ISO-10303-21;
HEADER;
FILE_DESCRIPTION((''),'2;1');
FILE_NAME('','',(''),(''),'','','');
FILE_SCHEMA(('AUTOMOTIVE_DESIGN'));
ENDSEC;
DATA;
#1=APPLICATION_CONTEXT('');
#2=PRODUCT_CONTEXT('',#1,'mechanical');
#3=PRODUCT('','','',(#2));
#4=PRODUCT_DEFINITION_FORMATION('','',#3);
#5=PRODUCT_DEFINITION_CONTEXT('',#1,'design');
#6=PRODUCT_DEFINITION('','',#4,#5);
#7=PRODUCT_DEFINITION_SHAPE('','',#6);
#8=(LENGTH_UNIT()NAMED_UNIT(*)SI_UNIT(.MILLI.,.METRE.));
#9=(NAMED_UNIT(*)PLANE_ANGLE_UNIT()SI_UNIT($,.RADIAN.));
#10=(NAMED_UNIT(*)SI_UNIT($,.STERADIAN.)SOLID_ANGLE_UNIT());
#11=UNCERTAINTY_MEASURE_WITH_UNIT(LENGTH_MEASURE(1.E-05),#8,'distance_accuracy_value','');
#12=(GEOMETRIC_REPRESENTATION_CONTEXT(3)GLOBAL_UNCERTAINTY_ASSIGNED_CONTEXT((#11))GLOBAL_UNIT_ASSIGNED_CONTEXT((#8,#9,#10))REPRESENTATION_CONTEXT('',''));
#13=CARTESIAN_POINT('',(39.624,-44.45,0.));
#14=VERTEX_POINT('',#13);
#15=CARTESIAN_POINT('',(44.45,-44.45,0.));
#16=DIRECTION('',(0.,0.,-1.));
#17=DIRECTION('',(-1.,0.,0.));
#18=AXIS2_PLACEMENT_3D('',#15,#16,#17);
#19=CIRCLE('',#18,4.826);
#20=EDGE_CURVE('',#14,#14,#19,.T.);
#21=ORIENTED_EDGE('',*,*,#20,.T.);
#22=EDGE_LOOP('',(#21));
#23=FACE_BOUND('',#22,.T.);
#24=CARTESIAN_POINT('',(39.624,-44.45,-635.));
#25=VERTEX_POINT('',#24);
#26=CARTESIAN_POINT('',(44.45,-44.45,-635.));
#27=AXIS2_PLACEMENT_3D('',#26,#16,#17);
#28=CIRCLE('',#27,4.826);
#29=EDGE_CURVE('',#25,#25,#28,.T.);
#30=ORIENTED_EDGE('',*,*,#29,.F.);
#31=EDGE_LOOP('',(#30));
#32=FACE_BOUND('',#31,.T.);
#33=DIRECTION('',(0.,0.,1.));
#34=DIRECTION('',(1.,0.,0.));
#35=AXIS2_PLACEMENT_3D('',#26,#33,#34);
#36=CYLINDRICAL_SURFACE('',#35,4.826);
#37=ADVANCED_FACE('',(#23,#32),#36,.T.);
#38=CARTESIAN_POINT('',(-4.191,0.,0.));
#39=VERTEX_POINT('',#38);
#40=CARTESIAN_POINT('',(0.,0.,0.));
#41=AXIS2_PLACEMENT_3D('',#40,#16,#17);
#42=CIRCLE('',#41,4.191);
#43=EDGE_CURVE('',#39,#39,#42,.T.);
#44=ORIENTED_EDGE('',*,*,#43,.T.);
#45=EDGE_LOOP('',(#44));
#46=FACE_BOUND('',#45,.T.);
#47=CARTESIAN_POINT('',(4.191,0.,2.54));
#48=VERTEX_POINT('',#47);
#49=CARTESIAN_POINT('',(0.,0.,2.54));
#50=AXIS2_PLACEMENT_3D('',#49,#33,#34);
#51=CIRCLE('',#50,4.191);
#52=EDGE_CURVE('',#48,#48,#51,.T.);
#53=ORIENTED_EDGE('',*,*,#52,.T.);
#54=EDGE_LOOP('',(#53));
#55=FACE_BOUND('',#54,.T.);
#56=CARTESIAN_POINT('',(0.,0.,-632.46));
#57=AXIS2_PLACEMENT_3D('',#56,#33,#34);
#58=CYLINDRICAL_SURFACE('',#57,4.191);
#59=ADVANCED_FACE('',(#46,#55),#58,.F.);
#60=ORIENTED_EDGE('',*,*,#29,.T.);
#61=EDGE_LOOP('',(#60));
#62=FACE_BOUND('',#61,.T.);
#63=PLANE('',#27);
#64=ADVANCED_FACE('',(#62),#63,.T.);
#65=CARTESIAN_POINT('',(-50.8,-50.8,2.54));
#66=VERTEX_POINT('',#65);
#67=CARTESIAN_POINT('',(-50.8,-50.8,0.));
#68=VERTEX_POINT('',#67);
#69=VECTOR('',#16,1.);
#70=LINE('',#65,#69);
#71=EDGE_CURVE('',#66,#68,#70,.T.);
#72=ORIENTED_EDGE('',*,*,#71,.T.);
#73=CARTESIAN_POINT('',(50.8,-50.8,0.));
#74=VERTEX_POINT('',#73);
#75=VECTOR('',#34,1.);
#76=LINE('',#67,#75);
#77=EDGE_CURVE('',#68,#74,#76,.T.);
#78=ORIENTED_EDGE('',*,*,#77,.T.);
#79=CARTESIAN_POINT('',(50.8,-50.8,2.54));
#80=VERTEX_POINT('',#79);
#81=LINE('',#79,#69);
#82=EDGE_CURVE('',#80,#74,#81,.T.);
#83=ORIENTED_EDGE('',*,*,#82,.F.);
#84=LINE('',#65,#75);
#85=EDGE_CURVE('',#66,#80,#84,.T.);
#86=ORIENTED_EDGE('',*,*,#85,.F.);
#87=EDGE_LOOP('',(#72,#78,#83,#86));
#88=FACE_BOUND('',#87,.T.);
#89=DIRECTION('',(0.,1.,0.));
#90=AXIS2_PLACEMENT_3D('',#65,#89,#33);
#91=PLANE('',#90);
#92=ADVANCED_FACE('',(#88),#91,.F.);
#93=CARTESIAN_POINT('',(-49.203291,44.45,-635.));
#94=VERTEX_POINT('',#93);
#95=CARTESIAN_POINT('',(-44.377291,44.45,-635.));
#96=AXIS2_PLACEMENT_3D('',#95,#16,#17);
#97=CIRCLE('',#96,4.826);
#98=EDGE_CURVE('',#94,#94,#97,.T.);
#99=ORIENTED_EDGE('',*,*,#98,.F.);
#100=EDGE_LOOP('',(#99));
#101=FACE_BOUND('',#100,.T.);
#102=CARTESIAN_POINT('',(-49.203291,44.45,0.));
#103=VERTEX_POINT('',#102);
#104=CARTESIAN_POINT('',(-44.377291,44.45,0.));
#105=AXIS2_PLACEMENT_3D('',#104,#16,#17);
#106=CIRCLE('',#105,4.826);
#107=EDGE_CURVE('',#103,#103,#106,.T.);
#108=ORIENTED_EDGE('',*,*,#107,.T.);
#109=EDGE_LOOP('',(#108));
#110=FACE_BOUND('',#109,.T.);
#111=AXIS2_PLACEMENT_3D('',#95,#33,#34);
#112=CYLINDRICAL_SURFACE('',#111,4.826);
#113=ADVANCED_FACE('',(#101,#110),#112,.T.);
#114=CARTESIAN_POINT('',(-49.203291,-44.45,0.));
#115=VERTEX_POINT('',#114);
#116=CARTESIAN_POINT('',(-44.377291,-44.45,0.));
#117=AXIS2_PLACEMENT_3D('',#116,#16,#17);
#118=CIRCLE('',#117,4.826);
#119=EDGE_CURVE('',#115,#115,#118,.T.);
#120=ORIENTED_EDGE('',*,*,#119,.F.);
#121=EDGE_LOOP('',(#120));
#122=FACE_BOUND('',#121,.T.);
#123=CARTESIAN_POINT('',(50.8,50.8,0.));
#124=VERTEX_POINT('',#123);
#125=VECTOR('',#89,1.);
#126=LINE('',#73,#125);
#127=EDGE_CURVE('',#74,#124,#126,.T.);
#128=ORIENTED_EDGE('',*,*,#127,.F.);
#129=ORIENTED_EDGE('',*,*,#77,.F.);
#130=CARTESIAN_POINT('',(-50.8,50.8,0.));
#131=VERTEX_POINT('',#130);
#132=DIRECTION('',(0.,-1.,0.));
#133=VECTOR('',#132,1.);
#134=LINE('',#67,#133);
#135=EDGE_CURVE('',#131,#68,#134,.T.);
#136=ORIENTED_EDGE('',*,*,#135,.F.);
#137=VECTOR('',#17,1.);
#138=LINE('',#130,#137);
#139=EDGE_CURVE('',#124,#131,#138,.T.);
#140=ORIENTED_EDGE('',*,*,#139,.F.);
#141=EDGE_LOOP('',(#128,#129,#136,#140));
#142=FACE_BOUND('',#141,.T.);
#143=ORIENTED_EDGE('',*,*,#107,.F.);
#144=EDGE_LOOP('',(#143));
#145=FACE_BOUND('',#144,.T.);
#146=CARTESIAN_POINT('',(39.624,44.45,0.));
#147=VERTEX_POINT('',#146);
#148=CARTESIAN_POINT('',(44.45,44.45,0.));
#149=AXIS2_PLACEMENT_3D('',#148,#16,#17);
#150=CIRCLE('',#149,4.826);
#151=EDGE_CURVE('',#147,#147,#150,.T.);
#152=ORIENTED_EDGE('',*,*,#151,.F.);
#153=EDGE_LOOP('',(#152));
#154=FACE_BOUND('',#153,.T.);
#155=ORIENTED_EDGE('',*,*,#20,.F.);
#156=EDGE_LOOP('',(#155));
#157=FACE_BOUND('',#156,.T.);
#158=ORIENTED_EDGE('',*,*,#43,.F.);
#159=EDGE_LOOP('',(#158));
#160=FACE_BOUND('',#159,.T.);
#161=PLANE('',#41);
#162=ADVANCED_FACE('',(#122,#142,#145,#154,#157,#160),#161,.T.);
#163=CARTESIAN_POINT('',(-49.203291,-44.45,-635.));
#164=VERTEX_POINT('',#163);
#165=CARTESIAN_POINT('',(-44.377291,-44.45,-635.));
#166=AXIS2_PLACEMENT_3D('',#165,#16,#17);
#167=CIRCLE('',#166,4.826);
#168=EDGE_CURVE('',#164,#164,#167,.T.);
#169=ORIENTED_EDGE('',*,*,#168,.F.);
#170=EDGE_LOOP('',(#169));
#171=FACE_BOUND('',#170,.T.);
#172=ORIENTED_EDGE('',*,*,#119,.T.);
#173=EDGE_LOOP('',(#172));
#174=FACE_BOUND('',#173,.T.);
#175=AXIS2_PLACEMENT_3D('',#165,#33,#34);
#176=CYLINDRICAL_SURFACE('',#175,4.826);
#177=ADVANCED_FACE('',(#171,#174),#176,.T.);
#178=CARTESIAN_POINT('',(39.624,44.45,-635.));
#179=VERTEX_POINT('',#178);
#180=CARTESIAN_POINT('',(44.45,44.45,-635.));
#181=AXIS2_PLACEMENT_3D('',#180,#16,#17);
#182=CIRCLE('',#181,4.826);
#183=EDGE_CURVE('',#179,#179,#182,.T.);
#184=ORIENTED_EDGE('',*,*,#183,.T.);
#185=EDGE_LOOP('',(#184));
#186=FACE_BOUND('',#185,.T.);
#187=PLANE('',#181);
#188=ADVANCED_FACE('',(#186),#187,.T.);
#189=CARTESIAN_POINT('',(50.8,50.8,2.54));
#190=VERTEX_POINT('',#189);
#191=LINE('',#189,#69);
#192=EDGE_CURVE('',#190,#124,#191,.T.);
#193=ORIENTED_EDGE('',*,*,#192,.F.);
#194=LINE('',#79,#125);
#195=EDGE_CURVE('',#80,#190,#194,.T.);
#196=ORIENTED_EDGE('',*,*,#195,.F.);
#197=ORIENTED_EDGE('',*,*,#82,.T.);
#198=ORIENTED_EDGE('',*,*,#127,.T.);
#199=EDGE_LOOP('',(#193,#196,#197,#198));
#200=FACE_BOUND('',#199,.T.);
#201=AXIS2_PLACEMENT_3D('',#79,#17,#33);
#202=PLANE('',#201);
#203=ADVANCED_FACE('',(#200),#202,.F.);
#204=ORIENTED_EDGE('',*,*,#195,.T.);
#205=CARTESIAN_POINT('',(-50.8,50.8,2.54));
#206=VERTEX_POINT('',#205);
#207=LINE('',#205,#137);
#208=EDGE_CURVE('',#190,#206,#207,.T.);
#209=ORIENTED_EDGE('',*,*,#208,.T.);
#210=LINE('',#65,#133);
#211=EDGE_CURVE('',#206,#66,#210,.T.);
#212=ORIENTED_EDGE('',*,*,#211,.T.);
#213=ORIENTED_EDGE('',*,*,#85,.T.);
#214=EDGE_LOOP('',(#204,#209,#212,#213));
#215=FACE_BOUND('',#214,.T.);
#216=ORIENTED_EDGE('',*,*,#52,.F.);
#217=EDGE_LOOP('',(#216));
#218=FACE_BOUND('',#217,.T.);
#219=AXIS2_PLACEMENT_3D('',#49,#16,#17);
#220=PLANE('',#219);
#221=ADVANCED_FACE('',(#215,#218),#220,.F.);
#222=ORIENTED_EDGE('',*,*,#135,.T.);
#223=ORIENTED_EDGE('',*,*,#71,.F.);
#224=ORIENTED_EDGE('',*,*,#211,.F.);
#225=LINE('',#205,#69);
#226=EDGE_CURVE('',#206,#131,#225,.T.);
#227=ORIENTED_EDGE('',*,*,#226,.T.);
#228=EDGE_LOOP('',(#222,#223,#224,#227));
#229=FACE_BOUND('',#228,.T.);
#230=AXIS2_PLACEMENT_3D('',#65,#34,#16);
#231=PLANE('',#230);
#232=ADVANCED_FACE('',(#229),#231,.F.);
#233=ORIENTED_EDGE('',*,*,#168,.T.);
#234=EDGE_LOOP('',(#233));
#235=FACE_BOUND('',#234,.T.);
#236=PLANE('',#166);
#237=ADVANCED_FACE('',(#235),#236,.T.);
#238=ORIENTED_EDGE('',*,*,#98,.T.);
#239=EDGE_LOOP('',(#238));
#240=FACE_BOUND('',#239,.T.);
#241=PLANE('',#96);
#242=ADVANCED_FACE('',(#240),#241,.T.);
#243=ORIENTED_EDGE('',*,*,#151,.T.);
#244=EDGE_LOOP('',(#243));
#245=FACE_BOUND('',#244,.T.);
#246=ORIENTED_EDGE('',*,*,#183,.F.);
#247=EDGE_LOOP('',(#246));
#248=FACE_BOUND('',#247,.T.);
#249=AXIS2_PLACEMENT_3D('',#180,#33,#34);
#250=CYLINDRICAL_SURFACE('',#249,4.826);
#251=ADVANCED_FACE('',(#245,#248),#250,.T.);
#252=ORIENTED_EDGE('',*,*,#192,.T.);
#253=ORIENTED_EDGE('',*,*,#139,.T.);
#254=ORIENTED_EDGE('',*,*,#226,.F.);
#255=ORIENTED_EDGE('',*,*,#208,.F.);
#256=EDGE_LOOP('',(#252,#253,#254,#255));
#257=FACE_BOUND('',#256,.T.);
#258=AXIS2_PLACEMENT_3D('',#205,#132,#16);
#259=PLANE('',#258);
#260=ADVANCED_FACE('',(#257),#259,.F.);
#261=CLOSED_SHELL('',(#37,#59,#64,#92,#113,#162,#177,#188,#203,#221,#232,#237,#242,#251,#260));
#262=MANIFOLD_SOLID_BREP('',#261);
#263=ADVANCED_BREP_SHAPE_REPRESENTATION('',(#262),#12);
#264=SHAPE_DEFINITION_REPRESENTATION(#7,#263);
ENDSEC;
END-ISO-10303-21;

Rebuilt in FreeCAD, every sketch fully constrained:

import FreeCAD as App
import Part
import Sketcher
from FreeCAD import Vector
Q = App.Units.Quantity

doc = App.newDocument("Part")
body = doc.addObject("PartDesign::Body", "Body")

# Sketch on XY plane
sketch1 = body.newObject("Sketcher::SketchObject", "Sketch")
sketch1.AttachmentSupport = (doc.getObject("XY_Plane"), [""])
sketch1.MapMode = "FlatFace"
sketch1.addGeometry(Part.LineSegment(Vector(-51, 51, 0), Vector(-51, -51, 0)), False)
sketch1.addGeometry(Part.LineSegment(Vector(-51, -51, 0), Vector(51, -51, 0)), False)
sketch1.addGeometry(Part.LineSegment(Vector(51, -51, 0), Vector(51, 51, 0)), False)
sketch1.addGeometry(Part.LineSegment(Vector(51, 51, 0), Vector(-51, 51, 0)), False)
sketch1.addConstraint(Sketcher.Constraint("Coincident", 0, 2, 1, 1))
sketch1.addConstraint(Sketcher.Constraint("Coincident", 1, 2, 2, 1))
sketch1.addConstraint(Sketcher.Constraint("Coincident", 2, 2, 3, 1))
sketch1.addConstraint(Sketcher.Constraint("Coincident", 3, 2, 0, 1))
sketch1.addConstraint(Sketcher.Constraint("Vertical", 0))
sketch1.addConstraint(Sketcher.Constraint("Horizontal", 1))
sketch1.addConstraint(Sketcher.Constraint("Vertical", 2))
sketch1.addConstraint(Sketcher.Constraint("Horizontal", 3))
sketch1.addConstraint(Sketcher.Constraint("Symmetric", 0, 2, 2, 2, -1, 1))
sketch1.addConstraint(Sketcher.Constraint("Equal", 3, 0))
sketch1.addConstraint(Sketcher.Constraint("DistanceX", 1, 1, 1, 2, Q("4 in")))
pad1 = body.newObject("PartDesign::Pad", "Pad")
pad1.Profile = sketch1
pad1.Length = Q("0.1 in")

# Sketch on XY plane
sketch2 = body.newObject("Sketcher::SketchObject", "Sketch001")
sketch2.AttachmentSupport = (doc.getObject("XY_Plane"), [""])
sketch2.MapMode = "FlatFace"
sketch2.addGeometry(Part.Circle(Vector(44.5, 44.5, 0), Vector(0, 0, 1), 4.8), False)
sketch2.addGeometry(Part.Circle(Vector(-44.4, 44.5, 0), Vector(0, 0, 1), 4.8), False)
sketch2.addGeometry(Part.Circle(Vector(-44.4, -44.5, 0), Vector(0, 0, 1), 4.8), False)
sketch2.addGeometry(Part.Circle(Vector(44.5, -44.5, 0), Vector(0, 0, 1), 4.8), False)
sketch2.addConstraint(Sketcher.Constraint("Equal", 0, 1))
sketch2.addConstraint(Sketcher.Constraint("Equal", 1, 2))
sketch2.addConstraint(Sketcher.Constraint("Equal", 2, 3))
sketch2.addConstraint(Sketcher.Constraint("Symmetric", 1, 3, 2, 3, -1))
sketch2.addConstraint(Sketcher.Constraint("Symmetric", 0, 3, 3, 3, -1))
sketch2.addConstraint(Sketcher.Constraint("Horizontal", 0, 3, 1, 3))
sketch2.addConstraint(Sketcher.Constraint("Diameter", 0, Q("0.38 in")))
sketch2.addConstraint(Sketcher.Constraint("DistanceY", 2, 3, 1, 3, Q("3.5 in")))
sketch2.addConstraint(Sketcher.Constraint("DistanceX", -1, 1, 0, 3, Q("1.75 in")))
sketch2.addConstraint(Sketcher.Constraint("DistanceX", 1, 3, -1, 1, 44.377291))
pad2 = body.newObject("PartDesign::Pad", "Pad001")
pad2.Profile = sketch2
pad2.Length = Q("25 in")
pad2.Reversed = True

# Sketch on XY plane
sketch3 = body.newObject("Sketcher::SketchObject", "Sketch002")
sketch3.AttachmentSupport = (doc.getObject("XY_Plane"), [""])
sketch3.MapMode = "FlatFace"
sketch3.AttachmentOffset = App.Placement(Vector(0, 0, 0.1 * 25.4), App.Rotation())
sketch3.addGeometry(Part.Circle(Vector(0, 0, 0), Vector(0, 0, 1), 4.2), False)
sketch3.addConstraint(Sketcher.Constraint("Coincident", 0, 3, -1, 1))
sketch3.addConstraint(Sketcher.Constraint("Diameter", 0, Q("0.33 in")))
pocket1 = body.newObject("PartDesign::Pocket", "Pocket")
pocket1.Profile = sketch3
pocket1.Length = Q("25 in")

doc.recompute()
